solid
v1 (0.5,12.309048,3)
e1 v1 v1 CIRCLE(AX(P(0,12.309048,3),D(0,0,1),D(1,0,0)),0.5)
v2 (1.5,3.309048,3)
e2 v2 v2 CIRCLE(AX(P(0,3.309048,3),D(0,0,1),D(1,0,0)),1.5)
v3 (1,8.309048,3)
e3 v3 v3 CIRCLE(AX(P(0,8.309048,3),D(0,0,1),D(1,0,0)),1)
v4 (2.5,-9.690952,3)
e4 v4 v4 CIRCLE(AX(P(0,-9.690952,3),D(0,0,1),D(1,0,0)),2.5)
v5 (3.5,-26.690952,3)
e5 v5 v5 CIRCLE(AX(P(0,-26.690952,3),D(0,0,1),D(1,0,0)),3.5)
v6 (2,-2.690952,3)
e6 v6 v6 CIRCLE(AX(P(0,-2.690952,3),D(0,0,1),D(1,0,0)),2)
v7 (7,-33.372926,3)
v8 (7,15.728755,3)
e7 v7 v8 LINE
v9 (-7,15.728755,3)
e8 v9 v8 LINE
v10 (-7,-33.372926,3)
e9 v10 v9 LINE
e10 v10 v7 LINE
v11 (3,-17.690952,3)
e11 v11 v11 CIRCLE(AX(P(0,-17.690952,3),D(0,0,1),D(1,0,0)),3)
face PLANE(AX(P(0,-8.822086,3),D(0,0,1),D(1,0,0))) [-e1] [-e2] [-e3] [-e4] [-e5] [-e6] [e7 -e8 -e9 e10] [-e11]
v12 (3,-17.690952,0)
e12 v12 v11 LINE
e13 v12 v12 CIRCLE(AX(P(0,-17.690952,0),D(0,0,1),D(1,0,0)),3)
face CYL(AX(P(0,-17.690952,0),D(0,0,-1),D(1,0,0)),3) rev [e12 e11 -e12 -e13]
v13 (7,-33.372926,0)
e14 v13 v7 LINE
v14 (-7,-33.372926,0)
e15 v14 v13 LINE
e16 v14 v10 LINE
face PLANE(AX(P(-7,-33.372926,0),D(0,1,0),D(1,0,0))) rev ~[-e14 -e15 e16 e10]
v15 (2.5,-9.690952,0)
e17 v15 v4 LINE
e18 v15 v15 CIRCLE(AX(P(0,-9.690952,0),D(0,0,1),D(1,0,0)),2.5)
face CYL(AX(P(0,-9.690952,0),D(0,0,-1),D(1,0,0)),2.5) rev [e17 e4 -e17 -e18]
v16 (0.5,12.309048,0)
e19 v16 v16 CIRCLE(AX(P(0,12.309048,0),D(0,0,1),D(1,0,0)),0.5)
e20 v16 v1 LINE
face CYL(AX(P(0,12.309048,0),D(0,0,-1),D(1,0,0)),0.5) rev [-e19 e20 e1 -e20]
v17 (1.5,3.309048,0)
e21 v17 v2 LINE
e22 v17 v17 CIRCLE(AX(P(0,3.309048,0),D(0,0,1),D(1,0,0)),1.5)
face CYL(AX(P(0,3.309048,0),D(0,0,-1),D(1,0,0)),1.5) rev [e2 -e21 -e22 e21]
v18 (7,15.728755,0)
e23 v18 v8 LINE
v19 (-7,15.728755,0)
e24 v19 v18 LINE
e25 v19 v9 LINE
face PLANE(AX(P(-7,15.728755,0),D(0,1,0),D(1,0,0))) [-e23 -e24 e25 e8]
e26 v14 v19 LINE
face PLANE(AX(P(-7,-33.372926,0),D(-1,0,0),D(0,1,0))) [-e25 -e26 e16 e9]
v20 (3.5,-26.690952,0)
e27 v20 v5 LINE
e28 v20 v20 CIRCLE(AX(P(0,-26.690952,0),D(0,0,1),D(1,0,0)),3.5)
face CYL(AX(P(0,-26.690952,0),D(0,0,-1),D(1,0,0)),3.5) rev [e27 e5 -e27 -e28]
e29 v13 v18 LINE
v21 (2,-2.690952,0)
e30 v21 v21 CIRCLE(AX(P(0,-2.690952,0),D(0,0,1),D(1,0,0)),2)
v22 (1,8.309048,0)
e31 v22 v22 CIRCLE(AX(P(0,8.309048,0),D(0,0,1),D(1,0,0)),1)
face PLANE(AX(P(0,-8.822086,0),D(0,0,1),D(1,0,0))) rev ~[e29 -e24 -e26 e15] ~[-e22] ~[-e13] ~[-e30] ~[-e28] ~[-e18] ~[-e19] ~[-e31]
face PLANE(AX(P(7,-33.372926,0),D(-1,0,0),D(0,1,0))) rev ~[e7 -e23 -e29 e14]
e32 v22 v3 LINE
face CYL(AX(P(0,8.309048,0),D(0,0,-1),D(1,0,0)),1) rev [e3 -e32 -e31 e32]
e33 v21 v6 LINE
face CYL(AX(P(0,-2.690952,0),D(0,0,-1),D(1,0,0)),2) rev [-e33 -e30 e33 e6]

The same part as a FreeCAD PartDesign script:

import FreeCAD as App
import Part
import Sketcher
from FreeCAD import Vector
Q = App.Units.Quantity


def add_polygon(sketch, points):
    """Adds a closed chain of lines whose ends are joined by coincident constraints."""
    first, n = sketch.GeometryCount, len(points)
    for a, b in zip(points, points[1:] + points[:1]):
        sketch.addGeometry(Part.LineSegment(App.Vector(*a, 0), App.Vector(*b, 0)), False)
    for i in range(n):
        sketch.addConstraint(Sketcher.Constraint("Coincident", first + i, 2, first + (i + 1) % n, 1))

doc = App.newDocument("Part")
params = doc.addObject("Spreadsheet::Sheet", "Params")
for row, (alias, value) in enumerate([
    ("sketch1_diameter", "7 mm"),
    ("sketch1_diameter2", "6 mm"),
    ("sketch1_diameter3", "5 mm"),
    ("sketch1_diameter4", "4 mm"),
    ("sketch1_diameter5", "3 mm"),
    ("pad1_length", "3 mm"),
], start=1):
    params.set(f"A{row}", alias)
    params.set(f"B{row}", "=" + value)
    params.setAlias(f"B{row}", alias)

body = doc.addObject("PartDesign::Body", "Body")

# Sketch on XY plane
sketch1 = doc.addObject("Sketcher::SketchObject", "Sketch")
body.addObject(sketch1)
sketch1.AttachmentSupport = (doc.XY_Plane, [""])
sketch1.MapMode = "FlatFace"
add_polygon(sketch1, [(-7, 15.7), (-7, -33.4), (7, -33.4), (7, 15.7)])  # lines 0-3
sketch1.addGeometry(Part.Circle(Vector(0, -26.7, 0), Vector(0, 0, 1), 3.5), False)  # 4
sketch1.addGeometry(Part.Circle(Vector(0, -17.7, 0), Vector(0, 0, 1), 3), False)  # 5
sketch1.addGeometry(Part.Circle(Vector(0, -9.7, 0), Vector(0, 0, 1), 2.5), False)  # 6
sketch1.addGeometry(Part.Circle(Vector(0, -2.7, 0), Vector(0, 0, 1), 2), False)  # 7
sketch1.addGeometry(Part.Circle(Vector(0, 3.3, 0), Vector(0, 0, 1), 1.5), False)  # 8
sketch1.addGeometry(Part.Circle(Vector(0, 8.3, 0), Vector(0, 0, 1), 1), False)  # 9
sketch1.addGeometry(Part.Circle(Vector(0, 12.3, 0), Vector(0, 0, 1), 0.5), False)  # 10
sketch1.addConstraint(Sketcher.Constraint("Vertical", 0))
sketch1.addConstraint(Sketcher.Constraint("Horizontal", 1))
sketch1.addConstraint(Sketcher.Constraint("Vertical", 2))
sketch1.addConstraint(Sketcher.Constraint("Horizontal", 3))
sketch1.addConstraint(Sketcher.Constraint("PointOnObject", 4, 3, -2))
sketch1.addConstraint(Sketcher.Constraint("PointOnObject", 5, 3, -2))
sketch1.addConstraint(Sketcher.Constraint("PointOnObject", 6, 3, -2))
sketch1.addConstraint(Sketcher.Constraint("PointOnObject", 7, 3, -2))
sketch1.addConstraint(Sketcher.Constraint("PointOnObject", 8, 3, -2))
sketch1.addConstraint(Sketcher.Constraint("PointOnObject", 9, 3, -2))
sketch1.addConstraint(Sketcher.Constraint("PointOnObject", 10, 3, -2))
sketch1.addConstraint(Sketcher.Constraint("Diameter", 4, Q("7 mm")))
sketch1.addConstraint(Sketcher.Constraint("Diameter", 5, Q("6 mm")))
sketch1.addConstraint(Sketcher.Constraint("Diameter", 6, Q("5 mm")))
sketch1.addConstraint(Sketcher.Constraint("Diameter", 7, Q("4 mm")))
sketch1.addConstraint(Sketcher.Constraint("Diameter", 8, Q("3 mm")))
sketch1.addConstraint(Sketcher.Constraint("Diameter", 9, Q("2 mm")))
sketch1.addConstraint(Sketcher.Constraint("Diameter", 10, Q("1 mm")))
sketch1.addConstraint(Sketcher.Constraint("DistanceX", 1, 1, 1, 2, Q("14 mm")))
sketch1.addConstraint(Sketcher.Constraint("DistanceX", 0, 2, -1, 1, Q("7 mm")))
sketch1.addConstraint(Sketcher.Constraint("DistanceY", 4, 3, 5, 3, Q("9 mm")))
sketch1.addConstraint(Sketcher.Constraint("DistanceY", 5, 3, 6, 3, Q("8 mm")))
sketch1.addConstraint(Sketcher.Constraint("DistanceY", 6, 3, 7, 3, Q("7 mm")))
sketch1.addConstraint(Sketcher.Constraint("DistanceY", 7, 3, 8, 3, Q("6 mm")))
sketch1.addConstraint(Sketcher.Constraint("DistanceY", 8, 3, 9, 3, Q("5 mm")))
sketch1.addConstraint(Sketcher.Constraint("DistanceY", 9, 3, 10, 3, Q("4 mm")))
sketch1.addConstraint(Sketcher.Constraint("DistanceY", 0, 2, 0, 1, Q("49.101681 mm")))
sketch1.addConstraint(Sketcher.Constraint("DistanceY", 4, 3, -1, 1, Q("26.690952 mm")))
sketch1.addConstraint(Sketcher.Constraint("DistanceY", 0, 2, -1, 1, Q("33.372926 mm")))
sketch1.setExpression("Constraints[15]", "Params.sketch1_diameter")
sketch1.setExpression("Constraints[16]", "Params.sketch1_diameter2")
sketch1.setExpression("Constraints[17]", "Params.sketch1_diameter3")
sketch1.setExpression("Constraints[18]", "Params.sketch1_diameter4")
sketch1.setExpression("Constraints[19]", "Params.sketch1_diameter5")
pad1 = doc.addObject("PartDesign::Pad", "Pad")
body.addObject(pad1)
pad1.Profile = sketch1
pad1.setExpression("Length", "Params.pad1_length")

doc.recompute()
